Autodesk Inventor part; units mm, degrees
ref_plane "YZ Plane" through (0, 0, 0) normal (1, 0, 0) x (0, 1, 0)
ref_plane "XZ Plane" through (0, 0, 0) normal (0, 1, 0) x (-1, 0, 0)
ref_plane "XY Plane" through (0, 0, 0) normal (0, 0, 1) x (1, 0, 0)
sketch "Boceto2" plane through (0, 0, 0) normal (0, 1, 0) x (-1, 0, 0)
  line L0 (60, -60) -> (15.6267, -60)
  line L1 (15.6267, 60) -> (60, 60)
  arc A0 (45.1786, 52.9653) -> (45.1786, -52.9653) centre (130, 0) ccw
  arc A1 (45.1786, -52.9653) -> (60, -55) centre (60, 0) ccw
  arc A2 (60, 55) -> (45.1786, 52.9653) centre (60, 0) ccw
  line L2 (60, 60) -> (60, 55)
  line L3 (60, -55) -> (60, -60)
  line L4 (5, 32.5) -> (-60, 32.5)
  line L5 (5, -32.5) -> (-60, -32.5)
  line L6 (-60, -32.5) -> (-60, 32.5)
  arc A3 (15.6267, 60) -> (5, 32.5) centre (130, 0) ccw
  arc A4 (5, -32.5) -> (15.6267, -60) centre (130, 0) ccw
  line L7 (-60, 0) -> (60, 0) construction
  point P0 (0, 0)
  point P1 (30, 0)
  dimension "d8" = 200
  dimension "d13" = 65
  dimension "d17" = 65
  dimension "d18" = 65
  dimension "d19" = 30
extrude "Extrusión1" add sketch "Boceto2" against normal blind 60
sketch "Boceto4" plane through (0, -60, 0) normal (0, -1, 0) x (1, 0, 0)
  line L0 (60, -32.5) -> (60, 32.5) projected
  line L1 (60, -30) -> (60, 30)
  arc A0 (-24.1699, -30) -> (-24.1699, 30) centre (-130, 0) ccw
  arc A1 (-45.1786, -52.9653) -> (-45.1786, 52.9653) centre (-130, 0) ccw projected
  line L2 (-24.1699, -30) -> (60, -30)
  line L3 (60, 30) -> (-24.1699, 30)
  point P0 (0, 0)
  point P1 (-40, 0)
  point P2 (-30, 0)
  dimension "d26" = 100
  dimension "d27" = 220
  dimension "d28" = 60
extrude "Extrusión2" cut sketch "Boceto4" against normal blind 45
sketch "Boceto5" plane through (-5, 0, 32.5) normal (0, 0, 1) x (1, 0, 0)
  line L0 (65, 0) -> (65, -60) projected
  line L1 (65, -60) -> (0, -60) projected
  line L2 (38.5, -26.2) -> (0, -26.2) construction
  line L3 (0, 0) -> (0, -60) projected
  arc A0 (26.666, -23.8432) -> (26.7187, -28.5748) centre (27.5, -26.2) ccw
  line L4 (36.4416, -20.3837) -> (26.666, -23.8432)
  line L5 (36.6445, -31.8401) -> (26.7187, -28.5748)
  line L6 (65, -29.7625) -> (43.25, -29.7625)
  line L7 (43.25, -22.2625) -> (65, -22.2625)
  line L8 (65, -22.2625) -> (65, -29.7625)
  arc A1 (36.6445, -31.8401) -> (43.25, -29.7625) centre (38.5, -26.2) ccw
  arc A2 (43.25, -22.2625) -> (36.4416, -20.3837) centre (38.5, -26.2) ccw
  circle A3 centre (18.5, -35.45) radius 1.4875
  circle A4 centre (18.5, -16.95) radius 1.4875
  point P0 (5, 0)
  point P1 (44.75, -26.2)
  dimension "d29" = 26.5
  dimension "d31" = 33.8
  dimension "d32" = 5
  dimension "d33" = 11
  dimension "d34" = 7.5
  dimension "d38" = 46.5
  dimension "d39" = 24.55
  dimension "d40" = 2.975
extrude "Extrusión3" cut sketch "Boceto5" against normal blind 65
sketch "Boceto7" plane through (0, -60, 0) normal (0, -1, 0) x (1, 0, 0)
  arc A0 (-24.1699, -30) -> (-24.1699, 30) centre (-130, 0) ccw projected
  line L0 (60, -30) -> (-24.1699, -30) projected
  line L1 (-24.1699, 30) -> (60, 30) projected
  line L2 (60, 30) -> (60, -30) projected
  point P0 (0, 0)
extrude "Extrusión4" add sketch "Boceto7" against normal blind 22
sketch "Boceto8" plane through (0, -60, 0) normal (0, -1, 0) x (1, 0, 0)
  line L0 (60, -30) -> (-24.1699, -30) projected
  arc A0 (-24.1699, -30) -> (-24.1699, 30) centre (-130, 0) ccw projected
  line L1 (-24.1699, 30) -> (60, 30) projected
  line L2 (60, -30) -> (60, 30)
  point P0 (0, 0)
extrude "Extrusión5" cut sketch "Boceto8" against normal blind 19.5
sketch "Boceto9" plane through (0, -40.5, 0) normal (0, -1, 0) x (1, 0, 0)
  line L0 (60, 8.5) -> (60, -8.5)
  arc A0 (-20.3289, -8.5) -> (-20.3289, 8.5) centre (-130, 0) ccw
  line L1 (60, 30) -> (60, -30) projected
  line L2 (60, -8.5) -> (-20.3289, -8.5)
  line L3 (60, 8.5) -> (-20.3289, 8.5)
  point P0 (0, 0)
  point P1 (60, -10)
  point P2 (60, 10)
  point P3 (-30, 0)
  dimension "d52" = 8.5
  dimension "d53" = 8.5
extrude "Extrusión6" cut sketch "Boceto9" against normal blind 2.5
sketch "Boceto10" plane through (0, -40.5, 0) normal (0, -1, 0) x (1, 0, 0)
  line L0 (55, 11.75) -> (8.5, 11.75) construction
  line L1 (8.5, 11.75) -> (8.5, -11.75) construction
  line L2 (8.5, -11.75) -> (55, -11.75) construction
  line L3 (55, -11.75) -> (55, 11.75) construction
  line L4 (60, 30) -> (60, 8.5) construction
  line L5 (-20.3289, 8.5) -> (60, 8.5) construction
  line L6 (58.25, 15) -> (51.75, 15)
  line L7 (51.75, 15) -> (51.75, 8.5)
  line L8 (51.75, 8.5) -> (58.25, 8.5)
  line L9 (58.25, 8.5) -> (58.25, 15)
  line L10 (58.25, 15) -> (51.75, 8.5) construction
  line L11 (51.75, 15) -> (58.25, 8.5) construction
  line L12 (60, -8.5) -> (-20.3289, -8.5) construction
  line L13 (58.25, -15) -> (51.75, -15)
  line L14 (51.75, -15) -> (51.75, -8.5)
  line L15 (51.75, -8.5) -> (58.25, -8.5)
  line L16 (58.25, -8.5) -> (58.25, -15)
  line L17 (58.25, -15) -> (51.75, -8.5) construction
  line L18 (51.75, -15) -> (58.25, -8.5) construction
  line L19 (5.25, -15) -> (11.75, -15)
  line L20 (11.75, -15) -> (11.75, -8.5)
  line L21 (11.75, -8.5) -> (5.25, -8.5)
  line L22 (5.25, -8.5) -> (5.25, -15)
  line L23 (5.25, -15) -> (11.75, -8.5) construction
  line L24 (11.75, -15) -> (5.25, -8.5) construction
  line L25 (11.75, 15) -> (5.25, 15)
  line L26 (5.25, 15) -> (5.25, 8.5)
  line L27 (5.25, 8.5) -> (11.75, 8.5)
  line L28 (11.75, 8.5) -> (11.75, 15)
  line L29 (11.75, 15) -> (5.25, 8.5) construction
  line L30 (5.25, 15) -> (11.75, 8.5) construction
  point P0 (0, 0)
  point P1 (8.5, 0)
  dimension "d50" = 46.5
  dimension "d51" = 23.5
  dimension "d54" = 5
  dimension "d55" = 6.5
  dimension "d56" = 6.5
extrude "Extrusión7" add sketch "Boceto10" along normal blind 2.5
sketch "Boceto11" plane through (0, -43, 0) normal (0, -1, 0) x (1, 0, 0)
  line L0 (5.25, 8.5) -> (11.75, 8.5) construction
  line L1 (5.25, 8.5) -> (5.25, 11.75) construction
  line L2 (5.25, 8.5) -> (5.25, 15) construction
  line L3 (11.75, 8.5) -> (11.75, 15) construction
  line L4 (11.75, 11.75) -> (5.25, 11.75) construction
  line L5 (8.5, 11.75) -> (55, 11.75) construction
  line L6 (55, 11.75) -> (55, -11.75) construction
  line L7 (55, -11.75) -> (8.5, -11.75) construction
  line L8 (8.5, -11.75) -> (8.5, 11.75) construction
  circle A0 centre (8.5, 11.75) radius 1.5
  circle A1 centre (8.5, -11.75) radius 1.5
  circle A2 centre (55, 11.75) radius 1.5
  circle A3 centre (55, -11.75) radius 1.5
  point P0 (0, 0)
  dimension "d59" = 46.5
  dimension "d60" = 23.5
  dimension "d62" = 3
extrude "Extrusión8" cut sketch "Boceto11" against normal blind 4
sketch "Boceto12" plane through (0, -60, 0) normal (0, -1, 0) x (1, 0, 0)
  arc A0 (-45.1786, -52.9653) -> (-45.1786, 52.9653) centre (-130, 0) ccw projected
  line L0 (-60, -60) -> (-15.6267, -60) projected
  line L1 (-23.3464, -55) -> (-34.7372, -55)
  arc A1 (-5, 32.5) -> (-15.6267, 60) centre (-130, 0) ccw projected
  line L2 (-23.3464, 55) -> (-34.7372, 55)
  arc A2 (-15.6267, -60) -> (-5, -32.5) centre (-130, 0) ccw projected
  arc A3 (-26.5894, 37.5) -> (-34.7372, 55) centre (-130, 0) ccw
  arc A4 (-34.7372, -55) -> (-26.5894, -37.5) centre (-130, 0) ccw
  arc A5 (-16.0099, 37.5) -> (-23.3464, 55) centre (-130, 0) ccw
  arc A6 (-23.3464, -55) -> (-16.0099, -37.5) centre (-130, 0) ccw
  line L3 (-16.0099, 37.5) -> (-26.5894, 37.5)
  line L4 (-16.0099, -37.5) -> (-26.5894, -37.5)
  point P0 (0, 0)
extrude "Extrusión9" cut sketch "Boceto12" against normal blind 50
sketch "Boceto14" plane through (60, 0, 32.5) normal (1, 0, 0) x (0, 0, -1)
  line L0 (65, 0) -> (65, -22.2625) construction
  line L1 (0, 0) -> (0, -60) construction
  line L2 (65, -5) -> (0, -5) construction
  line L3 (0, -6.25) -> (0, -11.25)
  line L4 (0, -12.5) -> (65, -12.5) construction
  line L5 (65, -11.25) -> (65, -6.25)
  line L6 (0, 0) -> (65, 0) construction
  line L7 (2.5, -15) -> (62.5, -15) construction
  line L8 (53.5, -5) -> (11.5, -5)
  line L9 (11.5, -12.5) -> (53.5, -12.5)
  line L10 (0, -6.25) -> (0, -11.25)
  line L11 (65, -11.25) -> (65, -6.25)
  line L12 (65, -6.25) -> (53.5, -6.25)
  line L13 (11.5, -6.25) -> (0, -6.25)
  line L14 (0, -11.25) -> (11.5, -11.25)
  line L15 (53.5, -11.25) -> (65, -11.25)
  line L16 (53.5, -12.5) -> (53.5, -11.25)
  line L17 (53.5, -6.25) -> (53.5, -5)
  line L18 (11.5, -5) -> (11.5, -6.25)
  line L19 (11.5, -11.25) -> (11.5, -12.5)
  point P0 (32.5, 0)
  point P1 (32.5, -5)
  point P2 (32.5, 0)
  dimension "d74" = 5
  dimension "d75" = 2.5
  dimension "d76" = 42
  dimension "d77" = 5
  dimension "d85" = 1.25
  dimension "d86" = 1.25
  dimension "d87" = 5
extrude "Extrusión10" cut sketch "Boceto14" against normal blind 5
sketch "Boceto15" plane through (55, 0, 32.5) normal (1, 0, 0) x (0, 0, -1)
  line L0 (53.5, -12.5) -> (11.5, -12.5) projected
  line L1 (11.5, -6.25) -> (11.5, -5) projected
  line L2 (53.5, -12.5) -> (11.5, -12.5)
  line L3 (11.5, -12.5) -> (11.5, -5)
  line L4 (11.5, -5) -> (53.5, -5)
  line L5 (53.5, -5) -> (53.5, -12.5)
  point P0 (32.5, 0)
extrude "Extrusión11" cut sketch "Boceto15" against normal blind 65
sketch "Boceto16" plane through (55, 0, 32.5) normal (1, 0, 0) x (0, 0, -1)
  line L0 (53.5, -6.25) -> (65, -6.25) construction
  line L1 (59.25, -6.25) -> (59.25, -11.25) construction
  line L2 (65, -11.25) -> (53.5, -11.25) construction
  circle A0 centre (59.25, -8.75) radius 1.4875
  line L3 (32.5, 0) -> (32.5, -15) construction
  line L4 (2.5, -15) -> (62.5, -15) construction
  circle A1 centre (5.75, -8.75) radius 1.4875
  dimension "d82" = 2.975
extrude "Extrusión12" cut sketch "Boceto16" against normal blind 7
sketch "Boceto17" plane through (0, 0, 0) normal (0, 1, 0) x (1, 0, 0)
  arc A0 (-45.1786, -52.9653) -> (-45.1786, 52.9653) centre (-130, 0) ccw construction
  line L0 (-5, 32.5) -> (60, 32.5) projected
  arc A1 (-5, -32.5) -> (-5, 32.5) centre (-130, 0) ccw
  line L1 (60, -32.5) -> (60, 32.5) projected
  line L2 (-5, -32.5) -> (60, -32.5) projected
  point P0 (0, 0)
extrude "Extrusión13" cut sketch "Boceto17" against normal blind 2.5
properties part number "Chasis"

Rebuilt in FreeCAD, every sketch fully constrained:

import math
import FreeCAD as App
import Part
import Sketcher
from FreeCAD import Vector
Q = App.Units.Quantity

doc = App.newDocument("Part")
body = doc.addObject("PartDesign::Body", "Body")

sketch1 = body.newObject("Sketcher::SketchObject", "Sketch")
sketch1.AttachmentSupport = (doc.getObject("XZ_Plane"), [""])
sketch1.MapMode = "FlatFace"
sketch1.addGeometry(Part.LineSegment(Vector(-16, -60, 0), Vector(-60, -60, 0)), False)
sketch1.addGeometry(Part.LineSegment(Vector(-60, -60, 0), Vector(-60, -55, 0)), False)
sketch1.addGeometry(Part.ArcOfCircle(Part.Circle(Vector(-60, 0, 0), Vector(0, 0, 1), 55), math.radians(-90), math.radians(-74.37)), False)
sketch1.addGeometry(Part.ArcOfCircle(Part.Circle(Vector(-130, 0, 0), Vector(0, 0, 1), 100), math.radians(-32), math.radians(32)), False)
sketch1.addGeometry(Part.ArcOfCircle(Part.Circle(Vector(-60, 0, 0), Vector(0, 0, 1), 55), math.radians(74.37), math.radians(90)), False)
sketch1.addGeometry(Part.LineSegment(Vector(-60, 55, 0), Vector(-60, 60, 0)), False)
sketch1.addGeometry(Part.LineSegment(Vector(-60, 60, 0), Vector(-16, 60, 0)), False)
sketch1.addGeometry(Part.ArcOfCircle(Part.Circle(Vector(-130, 0, 0), Vector(0, 0, 1), 129), math.radians(14.57), math.radians(27.68)), False)
sketch1.addGeometry(Part.LineSegment(Vector(-5, 32, 0), Vector(60, 32, 0)), False)
sketch1.addGeometry(Part.LineSegment(Vector(60, 32, 0), Vector(60, -32, 0)), False)
sketch1.addGeometry(Part.LineSegment(Vector(60, -32, 0), Vector(-5, -32, 0)), False)
sketch1.addGeometry(Part.ArcOfCircle(Part.Circle(Vector(-130, 0, 0), Vector(0, 0, 1), 129), math.radians(-27.68), math.radians(-14.57)), False)
sketch1.addConstraint(Sketcher.Constraint("Coincident", 0, 2, 1, 1))
sketch1.addConstraint(Sketcher.Constraint("Coincident", 1, 2, 2, 1))
sketch1.addConstraint(Sketcher.Constraint("Coincident", 2, 2, 3, 1))
sketch1.addConstraint(Sketcher.Constraint("Coincident", 3, 2, 4, 1))
sketch1.addConstraint(Sketcher.Constraint("Coincident", 4, 2, 5, 1))
sketch1.addConstraint(Sketcher.Constraint("Coincident", 5, 2, 6, 1))
sketch1.addConstraint(Sketcher.Constraint("Coincident", 6, 2, 7, 2))
sketch1.addConstraint(Sketcher.Constraint("Coincident", 7, 1, 8, 1))
sketch1.addConstraint(Sketcher.Constraint("Coincident", 8, 2, 9, 1))
sketch1.addConstraint(Sketcher.Constraint("Coincident", 9, 2, 10, 1))
sketch1.addConstraint(Sketcher.Constraint("Coincident", 10, 2, 11, 2))
sketch1.addConstraint(Sketcher.Constraint("Coincident", 11, 1, 0, 1))
sketch1.addConstraint(Sketcher.Constraint("Horizontal", 0))
sketch1.addConstraint(Sketcher.Constraint("Vertical", 1))
sketch1.addConstraint(Sketcher.Constraint("Vertical", 5))
sketch1.addConstraint(Sketcher.Constraint("Horizontal", 6))
sketch1.addConstraint(Sketcher.Constraint("Horizontal", 8))
sketch1.addConstraint(Sketcher.Constraint("Vertical", 9))
sketch1.addConstraint(Sketcher.Constraint("Horizontal", 10))
sketch1.addConstraint(Sketcher.Constraint("Coincident", 7, 3, 3, 3))
sketch1.addConstraint(Sketcher.Constraint("Coincident", 11, 3, 3, 3))
sketch1.addConstraint(Sketcher.Constraint("Equal", 7, 11))
sketch1.addConstraint(Sketcher.Constraint("Symmetric", 2, 2, 3, 2, -1))
sketch1.addConstraint(Sketcher.Constraint("Symmetric", 1, 2, 4, 2, -1))
sketch1.addConstraint(Sketcher.Constraint("Horizontal", 2, 3, 4, 3))
sketch1.addConstraint(Sketcher.Constraint("Vertical", 4, 3, 0, 2))
sketch1.addConstraint(Sketcher.Constraint("Vertical", 7, 1, 10, 2))
sketch1.addConstraint(Sketcher.Constraint("Vertical", 6, 2, 11, 1))
sketch1.addConstraint(Sketcher.Constraint("Equal", 10, 9))
sketch1.addConstraint(Sketcher.Constraint("Radius", 3, Q("100 mm")))
sketch1.addConstraint(Sketcher.Constraint("DistanceX", 8, 1, 8, 2, Q("65 mm")))
sketch1.addConstraint(Sketcher.Constraint("DistanceY", 1, 1, 1, 2, Q("5 mm")))
sketch1.addConstraint(Sketcher.Constraint("DistanceX", 3, 3, -1, 1, Q("130 mm")))
sketch1.addConstraint(Sketcher.Constraint("DistanceX", 4, 3, -1, 1, Q("60 mm")))
sketch1.addConstraint(Sketcher.Constraint("DistanceY", 0, 2, -1, 1, Q("60 mm")))
sketch1.addConstraint(Sketcher.Constraint("DistanceX", 7, 1, -1, 1, Q("5 mm")))
sketch1.addConstraint(Sketcher.Constraint("Radius", 2, Q("55.0015 mm")))
pad1 = body.newObject("PartDesign::Pad", "Pad")
pad1.Profile = sketch1
pad1.Length = 60

sketch2 = body.newObject("Sketcher::SketchObject", "Sketch001")
sketch2.AttachmentSupport = (doc.getObject("XZ_Plane"), [""])
sketch2.MapMode = "FlatFace"
sketch2.AttachmentOffset = App.Placement(Vector(0, 0, 60), App.Rotation())
sketch2.addGeometry(Part.LineSegment(Vector(-24, -30, 0), Vector(60, -30, 0)), False)
sketch2.addGeometry(Part.LineSegment(Vector(60, -30, 0), Vector(60, 30, 0)), False)
sketch2.addGeometry(Part.LineSegment(Vector(60, 30, 0), Vector(-24, 30, 0)), False)
sketch2.addGeometry(Part.ArcOfCircle(Part.Circle(Vector(-130, 0, 0), Vector(0, 0, 1), 110), math.radians(-16), math.radians(16)), False)
sketch2.addConstraint(Sketcher.Constraint("Coincident", 0, 2, 1, 1))
sketch2.addConstraint(Sketcher.Constraint("Coincident", 1, 2, 2, 1))
sketch2.addConstraint(Sketcher.Constraint("Coincident", 2, 2, 3, 2))
sketch2.addConstraint(Sketcher.Constraint("Coincident", 3, 1, 0, 1))
sketch2.addConstraint(Sketcher.Constraint("Horizontal", 0))
sketch2.addConstraint(Sketcher.Constraint("Vertical", 1))
sketch2.addConstraint(Sketcher.Constraint("Horizontal", 2))
sketch2.addConstraint(Sketcher.Constraint("Symmetric", 2, 2, 3, 1, -1))
sketch2.addConstraint(Sketcher.Constraint("Radius", 3, Q("110 mm")))
sketch2.addConstraint(Sketcher.Constraint("DistanceY", 1, 1, 1, 2, Q("60 mm")))
sketch2.addConstraint(Sketcher.Constraint("DistanceX", -1, 1, 0, 2, Q("60 mm")))
sketch2.addConstraint(Sketcher.Constraint("DistanceX", 3, 3, -1, 1, Q("130 mm")))
pocket1 = body.newObject("PartDesign::Pocket", "Pocket")
pocket1.Profile = sketch2
pocket1.Length = 45

sketch3 = body.newObject("Sketcher::SketchObject", "Sketch002")
sketch3.AttachmentSupport = (doc.getObject("XY_Plane"), [""])
sketch3.MapMode = "FlatFace"
sketch3.AttachmentOffset = App.Placement(Vector(0, 0, 32.5), App.Rotation())
sketch3.addGeometry(Part.LineSegment(Vector(60, -29.8, 0), Vector(60, -22.3, 0)), False)
sketch3.addGeometry(Part.LineSegment(Vector(60, -22.3, 0), Vector(38.2, -22.3, 0)), False)
sketch3.addGeometry(Part.ArcOfCircle(Part.Circle(Vector(33.5, -26.2, 0), Vector(0, 0, 1), 6.2), math.radians(40), math.radians(109)), False)
sketch3.addGeometry(Part.LineSegment(Vector(31.4, -20.4, 0), Vector(21.7, -23.8, 0)), False)
sketch3.addGeometry(Part.ArcOfCircle(Part.Circle(Vector(22.5, -26.2, 0), Vector(0, 0, 1), 2.5), math.radians(109), math.radians(252)), False)
sketch3.addGeometry(Part.LineSegment(Vector(21.7, -28.6, 0), Vector(31.6, -31.8, 0)), False)
sketch3.addGeometry(Part.ArcOfCircle(Part.Circle(Vector(33.5, -26.2, 0), Vector(0, 0, 1), 5.9), math.radians(-108), math.radians(-37)), False)
sketch3.addGeometry(Part.LineSegment(Vector(38.2, -29.8, 0), Vector(60, -29.8, 0)), False)
sketch3.addGeometry(Part.Circle(Vector(13.5, -35.5, 0), Vector(0, 0, 1), 1.5), False)
sketch3.addGeometry(Part.Circle(Vector(13.5, -16.9, 0), Vector(0, 0, 1), 1.5), False)
sketch3.addConstraint(Sketcher.Constraint("Coincident", 0, 2, 1, 1))
sketch3.addConstraint(Sketcher.Constraint("Coincident", 1, 2, 2, 1))
sketch3.addConstraint(Sketcher.Constraint("Tangent", 2, 2, 3, 1))
sketch3.addConstraint(Sketcher.Constraint("Tangent", 3, 2, 4, 1))
sketch3.addConstraint(Sketcher.Constraint("Tangent", 4, 2, 5, 1))
sketch3.addConstraint(Sketcher.Constraint("Tangent", 5, 2, 6, 1))
sketch3.addConstraint(Sketcher.Constraint("Coincident", 6, 2, 7, 1))
sketch3.addConstraint(Sketcher.Constraint("Coincident", 7, 2, 0, 1))
sketch3.addConstraint(Sketcher.Constraint("Vertical", 0))
sketch3.addConstraint(Sketcher.Constraint("Horizontal", 1))
sketch3.addConstraint(Sketcher.Constraint("Horizontal", 7))
sketch3.addConstraint(Sketcher.Constraint("Coincident", 6, 3, 2, 3))
sketch3.addConstraint(Sketcher.Constraint("Equal", 8, 9))
sketch3.addConstraint(Sketcher.Constraint("Horizontal", 2, 3, 4, 3))
sketch3.addConstraint(Sketcher.Constraint("Vertical", 8, 3, 9, 3))
sketch3.addConstraint(Sketcher.Constraint("Vertical", 1, 2, 6, 2))
sketch3.addConstraint(Sketcher.Constraint("Radius", 4, Q("2.5 mm")))
sketch3.addConstraint(Sketcher.Constraint("Diameter", 8, Q("2.975 mm")))
sketch3.addConstraint(Sketcher.Constraint("DistanceY", 0, 1, 0, 2, Q("7.5 mm")))
sketch3.addConstraint(Sketcher.Constraint("DistanceX", 4, 3, 2, 3, Q("11 mm")))
sketch3.addConstraint(Sketcher.Constraint("DistanceX", 2, 3, 0, 2, Q("26.5 mm")))
sketch3.addConstraint(Sketcher.Constraint("DistanceX", 9, 3, 0, 2, Q("46.5 mm")))
sketch3.addConstraint(Sketcher.Constraint("DistanceX", -1, 1, 0, 2, Q("60 mm")))
sketch3.addConstraint(Sketcher.Constraint("DistanceX", 1, 2, 1, 1, Q("21.75 mm")))
sketch3.addConstraint(Sketcher.Constraint("DistanceY", 2, 3, -1, 1, Q("26.2 mm")))
sketch3.addConstraint(Sketcher.Constraint("Angle", 5, Q("-18.2097 deg")))
sketch3.addConstraint(Sketcher.Constraint("DistanceY", 8, 3, 9, 3, Q("18.5 mm")))
sketch3.addConstraint(Sketcher.Constraint("DistanceY", 8, 3, -1, 1, Q("35.45 mm")))
pocket2 = body.newObject("PartDesign::Pocket", "Pocket001")
pocket2.Profile = sketch3
pocket2.Length = 65

sketch4 = body.newObject("Sketcher::SketchObject", "Sketch003")
sketch4.AttachmentSupport = (doc.getObject("XZ_Plane"), [""])
sketch4.MapMode = "FlatFace"
sketch4.AttachmentOffset = App.Placement(Vector(0, 0, 60), App.Rotation())
sketch4.addGeometry(Part.ArcOfCircle(Part.Circle(Vector(-130, 0, 0), Vector(0, 0, 1), 110), math.radians(-16), math.radians(16)), False)
sketch4.addGeometry(Part.LineSegment(Vector(-24, -30, 0), Vector(60, -30, 0)), False)
sketch4.addGeometry(Part.LineSegment(Vector(60, -30, 0), Vector(60, 30, 0)), False)
sketch4.addGeometry(Part.LineSegment(Vector(60, 30, 0), Vector(-24, 30, 0)), False)
sketch4.addConstraint(Sketcher.Constraint("Coincident", 0, 1, 1, 1))
sketch4.addConstraint(Sketcher.Constraint("Coincident", 1, 2, 2, 1))
sketch4.addConstraint(Sketcher.Constraint("Coincident", 2, 2, 3, 1))
sketch4.addConstraint(Sketcher.Constraint("Coincident", 3, 2, 0, 2))
sketch4.addConstraint(Sketcher.Constraint("Horizontal", 1))
sketch4.addConstraint(Sketcher.Constraint("Vertical", 2))
sketch4.addConstraint(Sketcher.Constraint("Horizontal", 3))
sketch4.addConstraint(Sketcher.Constraint("Symmetric", 0, 1, 3, 2, -1))
sketch4.addConstraint(Sketcher.Constraint("Radius", 0, Q("110 mm")))
sketch4.addConstraint(Sketcher.Constraint("DistanceY", 2, 1, 2, 2, Q("60 mm")))
sketch4.addConstraint(Sketcher.Constraint("DistanceX", 0, 3, -1, 1, Q("130 mm")))
sketch4.addConstraint(Sketcher.Constraint("DistanceX", -1, 1, 1, 2, Q("60 mm")))
pad2 = body.newObject("PartDesign::Pad", "Pad001")
pad2.Profile = sketch4
pad2.Length = 22
pad2.Reversed = True

sketch5 = body.newObject("Sketcher::SketchObject", "Sketch004")
sketch5.AttachmentSupport = (doc.getObject("XZ_Plane"), [""])
sketch5.MapMode = "FlatFace"
sketch5.AttachmentOffset = App.Placement(Vector(0, 0, 60), App.Rotation())
sketch5.addGeometry(Part.LineSegment(Vector(-24, -30, 0), Vector(60, -30, 0)), False)
sketch5.addGeometry(Part.LineSegment(Vector(60, -30, 0), Vector(60, 30, 0)), False)
sketch5.addGeometry(Part.LineSegment(Vector(60, 30, 0), Vector(-24, 30, 0)), False)
sketch5.addGeometry(Part.ArcOfCircle(Part.Circle(Vector(-130, 0, 0), Vector(0, 0, 1), 110), math.radians(-16), math.radians(16)), False)
sketch5.addConstraint(Sketcher.Constraint("Coincident", 0, 2, 1, 1))
sketch5.addConstraint(Sketcher.Constraint("Coincident", 1, 2, 2, 1))
sketch5.addConstraint(Sketcher.Constraint("Coincident", 2, 2, 3, 2))
sketch5.addConstraint(Sketcher.Constraint("Coincident", 3, 1, 0, 1))
sketch5.addConstraint(Sketcher.Constraint("Horizontal", 0))
sketch5.addConstraint(Sketcher.Constraint("Vertical", 1))
sketch5.addConstraint(Sketcher.Constraint("Horizontal", 2))
sketch5.addConstraint(Sketcher.Constraint("Symmetric", 2, 2, 3, 1, -1))
sketch5.addConstraint(Sketcher.Constraint("Radius", 3, Q("110 mm")))
sketch5.addConstraint(Sketcher.Constraint("DistanceY", 1, 1, 1, 2, Q("60 mm")))
sketch5.addConstraint(Sketcher.Constraint("DistanceX", 3, 3, -1, 1, Q("130 mm")))
sketch5.addConstraint(Sketcher.Constraint("DistanceX", -1, 1, 0, 2, Q("60 mm")))
pocket3 = body.newObject("PartDesign::Pocket", "Pocket002")
pocket3.Profile = sketch5
pocket3.Length = 19.5

sketch6 = body.newObject("Sketcher::SketchObject", "Sketch005")
sketch6.AttachmentSupport = (doc.getObject("XZ_Plane"), [""])
sketch6.MapMode = "FlatFace"
sketch6.AttachmentOffset = App.Placement(Vector(0, 0, 40.5), App.Rotation())
sketch6.addGeometry(Part.LineSegment(Vector(60, -8, 0), Vector(60, 8, 0)), False)
sketch6.addGeometry(Part.LineSegment(Vector(60, 8, 0), Vector(-20, 8, 0)), False)
sketch6.addGeometry(Part.ArcOfCircle(Part.Circle(Vector(-130, 0, 0), Vector(0, 0, 1), 110), math.radians(-4.43), math.radians(4.43)), False)
sketch6.addGeometry(Part.LineSegment(Vector(-20, -8, 0), Vector(60, -8, 0)), False)
sketch6.addConstraint(Sketcher.Constraint("Coincident", 0, 2, 1, 1))
sketch6.addConstraint(Sketcher.Constraint("Coincident", 1, 2, 2, 2))
sketch6.addConstraint(Sketcher.Constraint("Coincident", 2, 1, 3, 1))
sketch6.addConstraint(Sketcher.Constraint("Coincident", 3, 2, 0, 1))
sketch6.addConstraint(Sketcher.Constraint("Vertical", 0))
sketch6.addConstraint(Sketcher.Constraint("Horizontal", 1))
sketch6.addConstraint(Sketcher.Constraint("Horizontal", 3))
sketch6.addConstraint(Sketcher.Constraint("Symmetric", 1, 2, 2, 1, -1))
sketch6.addConstraint(Sketcher.Constraint("Radius", 2, Q("110 mm")))
sketch6.addConstraint(Sketcher.Constraint("DistanceY", -1, 1, 0, 2, Q("8.5 mm")))
sketch6.addConstraint(Sketcher.Constraint("DistanceX", 2, 3, -1, 1, Q("130 mm")))
sketch6.addConstraint(Sketcher.Constraint("DistanceX", -1, 1, 0, 2, Q("60 mm")))
pocket4 = body.newObject("PartDesign::Pocket", "Pocket003")
pocket4.Profile = sketch6
pocket4.Length = 2.5

sketch7 = body.newObject("Sketcher::SketchObject", "Sketch006")
sketch7.AttachmentSupport = (doc.getObject("XZ_Plane"), [""])
sketch7.MapMode = "FlatFace"
sketch7.AttachmentOffset = App.Placement(Vector(0, 0, 40.5), App.Rotation())
sketch7.addGeometry(Part.LineSegment(Vector(58, 8, 0), Vector(58, 15, 0)), False)
sketch7.addGeometry(Part.LineSegment(Vector(58, 15, 0), Vector(52, 15, 0)), False)
sketch7.addGeometry(Part.LineSegment(Vector(52, 15, 0), Vector(52, 8, 0)), False)
sketch7.addGeometry(Part.LineSegment(Vector(52, 8, 0), Vector(58, 8, 0)), False)
sketch7.addGeometry(Part.LineSegment(Vector(52, -15, 0), Vector(58, -15, 0)), False)
sketch7.addGeometry(Part.LineSegment(Vector(58, -15, 0), Vector(58, -8, 0)), False)
sketch7.addGeometry(Part.LineSegment(Vector(58, -8, 0), Vector(52, -8, 0)), False)
sketch7.addGeometry(Part.LineSegment(Vector(52, -8, 0), Vector(52, -15, 0)), False)
sketch7.addGeometry(Part.LineSegment(Vector(5, -8, 0), Vector(5, -15, 0)), False)
sketch7.addGeometry(Part.LineSegment(Vector(5, -15, 0), Vector(12, -15, 0)), False)
sketch7.addGeometry(Part.LineSegment(Vector(12, -15, 0), Vector(12, -8, 0)), False)
sketch7.addGeometry(Part.LineSegment(Vector(12, -8, 0), Vector(5, -8, 0)), False)
sketch7.addGeometry(Part.LineSegment(Vector(12, 8, 0), Vector(12, 15, 0)), False)
sketch7.addGeometry(Part.LineSegment(Vector(12, 15, 0), Vector(5, 15, 0)), False)
sketch7.addGeometry(Part.LineSegment(Vector(5, 15, 0), Vector(5, 8, 0)), False)
sketch7.addGeometry(Part.LineSegment(Vector(5, 8, 0), Vector(12, 8, 0)), False)
sketch7.addConstraint(Sketcher.Constraint("Coincident", 0, 2, 1, 1))
sketch7.addConstraint(Sketcher.Constraint("Coincident", 1, 2, 2, 1))
sketch7.addConstraint(Sketcher.Constraint("Coincident", 2, 2, 3, 1))
sketch7.addConstraint(Sketcher.Constraint("Coincident", 3, 2, 0, 1))
sketch7.addConstraint(Sketcher.Constraint("Coincident", 4, 2, 5, 1))
sketch7.addConstraint(Sketcher.Constraint("Coincident", 5, 2, 6, 1))
sketch7.addConstraint(Sketcher.Constraint("Coincident", 6, 2, 7, 1))
sketch7.addConstraint(Sketcher.Constraint("Coincident", 7, 2, 4, 1))
sketch7.addConstraint(Sketcher.Constraint("Coincident", 8, 2, 9, 1))
sketch7.addConstraint(Sketcher.Constraint("Coincident", 9, 2, 10, 1))
sketch7.addConstraint(Sketcher.Constraint("Coincident", 10, 2, 11, 1))
sketch7.addConstraint(Sketcher.Constraint("Coincident", 11, 2, 8, 1))
sketch7.addConstraint(Sketcher.Constraint("Coincident", 12, 2, 13, 1))
sketch7.addConstraint(Sketcher.Constraint("Coincident", 13, 2, 14, 1))
sketch7.addConstraint(Sketcher.Constraint("Coincident", 14, 2, 15, 1))
sketch7.addConstraint(Sketcher.Constraint("Coincident", 15, 2, 12, 1))
sketch7.addConstraint(Sketcher.Constraint("Vertical", 0))
sketch7.addConstraint(Sketcher.Constraint("Horizontal", 1))
sketch7.addConstraint(Sketcher.Constraint("Vertical", 2))
sketch7.addConstraint(Sketcher.Constraint("Horizontal", 3))
sketch7.addConstraint(Sketcher.Constraint("Horizontal", 4))
sketch7.addConstraint(Sketcher.Constraint("Vertical", 5))
sketch7.addConstraint(Sketcher.Constraint("Horizontal", 6))
sketch7.addConstraint(Sketcher.Constraint("Vertical", 7))
sketch7.addConstraint(Sketcher.Constraint("Vertical", 8))
sketch7.addConstraint(Sketcher.Constraint("Horizontal", 9))
sketch7.addConstraint(Sketcher.Constraint("Vertical", 10))
sketch7.addConstraint(Sketcher.Constraint("Horizontal", 11))
sketch7.addConstraint(Sketcher.Constraint("Vertical", 12))
sketch7.addConstraint(Sketcher.Constraint("Horizontal", 13))
sketch7.addConstraint(Sketcher.Constraint("Vertical", 14))
sketch7.addConstraint(Sketcher.Constraint("Horizontal", 15))
sketch7.addConstraint(Sketcher.Constraint("Symmetric", 0, 2, 4, 2, -1))
sketch7.addConstraint(Sketcher.Constraint("Symmetric", 2, 2, 6, 2, -1))
sketch7.addConstraint(Sketcher.Constraint("Symmetric", 9, 2, 12, 2, -1))
sketch7.addConstraint(Sketcher.Constraint("Symmetric", 11, 2, 14, 2, -1))
sketch7.addConstraint(Sketcher.Constraint("Horizontal", 7, 2, 8, 2))
sketch7.addConstraint(Sketcher.Constraint("Horizontal", 6, 2, 10, 2))
sketch7.addConstraint(Sketcher.Constraint("Equal", 6, 9))
sketch7.addConstraint(Sketcher.Constraint("Equal", 15, 0))
sketch7.addConstraint(Sketcher.Constraint("DistanceX", 1, 2, 1, 1, Q("6.5 mm")))
sketch7.addConstraint(Sketcher.Constraint("DistanceY", 4, 2, 3, 2, Q("23.5 mm")))
sketch7.addConstraint(Sketcher.Constraint("DistanceX", 8, 2, 7, 2, Q("46.5 mm")))
sketch7.addConstraint(Sketcher.Constraint("DistanceX", -1, 1, 0, 2, Q("58.25 mm")))
pad3 = body.newObject("PartDesign::Pad", "Pad002")
pad3.Profile = sketch7
pad3.Length = 2.5

sketch8 = body.newObject("Sketcher::SketchObject", "Sketch007")
sketch8.AttachmentSupport = (doc.getObject("XZ_Plane"), [""])
sketch8.MapMode = "FlatFace"
sketch8.AttachmentOffset = App.Placement(Vector(0, 0, 43), App.Rotation())
sketch8.addGeometry(Part.Circle(Vector(8.5, 11.8, 0), Vector(0, 0, 1), 1.5), False)
sketch8.addGeometry(Part.Circle(Vector(8.5, -11.8, 0), Vector(0, 0, 1), 1.5), False)
sketch8.addGeometry(Part.Circle(Vector(55, 11.8, 0), Vector(0, 0, 1), 1.5), False)
sketch8.addGeometry(Part.Circle(Vector(55, -11.8, 0), Vector(0, 0, 1), 1.5), False)
sketch8.addConstraint(Sketcher.Constraint("Equal", 0, 1))
sketch8.addConstraint(Sketcher.Constraint("Equal", 1, 2))
sketch8.addConstraint(Sketcher.Constraint("Equal", 2, 3))
sketch8.addConstraint(Sketcher.Constraint("Symmetric", 0, 3, 1, 3, -1))
sketch8.addConstraint(Sketcher.Constraint("Symmetric", 2, 3, 3, 3, -1))
sketch8.addConstraint(Sketcher.Constraint("Horizontal", 0, 3, 2, 3))
sketch8.addConstraint(Sketcher.Constraint("Diameter", 0, Q("3 mm")))
sketch8.addConstraint(Sketcher.Constraint("DistanceY", 1, 3, 0, 3, Q("23.5 mm")))
sketch8.addConstraint(Sketcher.Constraint("DistanceX", 0, 3, 2, 3, Q("46.5 mm")))
sketch8.addConstraint(Sketcher.Constraint("DistanceX", -1, 1, 2, 3, Q("55 mm")))
pocket5 = body.newObject("PartDesign::Pocket", "Pocket004")
pocket5.Profile = sketch8
pocket5.Length = 4

sketch9 = body.newObject("Sketcher::SketchObject", "Sketch008")
sketch9.AttachmentSupport = (doc.getObject("XZ_Plane"), [""])
sketch9.MapMode = "FlatFace"
sketch9.AttachmentOffset = App.Placement(Vector(0, 0, 60), App.Rotation())
sketch9.addGeometry(Part.LineSegment(Vector(-35, -55, 0), Vector(-23, -55, 0)), False)
sketch9.addGeometry(Part.ArcOfCircle(Part.Circle(Vector(-130, 0, 0), Vector(0, 0, 1), 120), math.radians(-27.28), math.radians(-18.21)), False)
sketch9.addGeometry(Part.LineSegment(Vector(-16, -38, 0), Vector(-27, -38, 0)), False)
sketch9.addGeometry(Part.ArcOfCircle(Part.Circle(Vector(-130, 0, 0), Vector(0, 0, 1), 110), math.radians(-30), math.radians(-19.93)), False)
sketch9.addGeometry(Part.ArcOfCircle(Part.Circle(Vector(-130, 0, 0), Vector(0, 0, 1), 120), math.radians(18.21), math.radians(27.28)), False)
sketch9.addGeometry(Part.LineSegment(Vector(-23, 55, 0), Vector(-35, 55, 0)), False)
sketch9.addGeometry(Part.ArcOfCircle(Part.Circle(Vector(-130, 0, 0), Vector(0, 0, 1), 110), math.radians(19.93), math.radians(30)), False)
sketch9.addGeometry(Part.LineSegment(Vector(-27, 38, 0), Vector(-16, 38, 0)), False)
sketch9.addConstraint(Sketcher.Constraint("Coincident", 0, 2, 1, 1))
sketch9.addConstraint(Sketcher.Constraint("Coincident", 1, 2, 2, 1))
sketch9.addConstraint(Sketcher.Constraint("Coincident", 2, 2, 3, 2))
sketch9.addConstraint(Sketcher.Constraint("Coincident", 3, 1, 0, 1))
sketch9.addConstraint(Sketcher.Constraint("Coincident", 4, 2, 5, 1))
sketch9.addConstraint(Sketcher.Constraint("Coincident", 5, 2, 6, 2))
sketch9.addConstraint(Sketcher.Constraint("Coincident", 6, 1, 7, 1))
sketch9.addConstraint(Sketcher.Constraint("Coincident", 7, 2, 4, 1))
sketch9.addConstraint(Sketcher.Constraint("Horizontal", 0))
sketch9.addConstraint(Sketcher.Constraint("Horizontal", 2))
sketch9.addConstraint(Sketcher.Constraint("Horizontal", 5))
sketch9.addConstraint(Sketcher.Constraint("Horizontal", 7))
sketch9.addConstraint(Sketcher.Constraint("Coincident", 6, 3, 3, 3))
sketch9.addConstraint(Sketcher.Constraint("Equal", 3, 6))
sketch9.addConstraint(Sketcher.Constraint("Symmetric", 0, 2, 4, 2, -1))
sketch9.addConstraint(Sketcher.Constraint("Symmetric", 2, 2, 6, 1, -1))
sketch9.addConstraint(Sketcher.Constraint("Horizontal", 1, 3, 4, 3))
sketch9.addConstraint(Sketcher.Constraint("Vertical", 1, 2, 7, 2))
sketch9.addConstraint(Sketcher.Constraint("Radius", 3, Q("110 mm")))
sketch9.addConstraint(Sketcher.Constraint("DistanceX", 3, 3, -1, 1, Q("130 mm")))
sketch9.addConstraint(Sketcher.Constraint("DistanceY", 0, 2, -1, 1, Q("55 mm")))
sketch9.addConstraint(Sketcher.Constraint("DistanceY", 2, 2, 6, 1, Q("75 mm")))
sketch9.addConstraint(Sketcher.Constraint("Radius", 1, Q("120.0016 mm")))
sketch9.addConstraint(Sketcher.Constraint("Radius", 4, Q("119.9983 mm")))
sketch9.addConstraint(Sketcher.Constraint("DistanceX", 1, 2, -1, 1, Q("16.01 mm")))
pocket6 = body.newObject("PartDesign::Pocket", "Pocket005")
pocket6.Profile = sketch9
pocket6.Length = 50

sketch10 = body.newObject("Sketcher::SketchObject", "Sketch009")
sketch10.AttachmentSupport = (doc.getObject("YZ_Plane"), [""])
sketch10.MapMode = "FlatFace"
sketch10.AttachmentOffset = App.Placement(Vector(0, 0, 60), App.Rotation())
sketch10.addGeometry(Part.LineSegment(Vector(-6.2, 21, 0), Vector(-6.2, 32.5, 0)), False)
sketch10.addGeometry(Part.LineSegment(Vector(-6.2, 32.5, 0), Vector(-11.2, 32.5, 0)), False)
sketch10.addGeometry(Part.LineSegment(Vector(-11.2, 32.5, 0), Vector(-11.2, 21, 0)), False)
sketch10.addGeometry(Part.LineSegment(Vector(-11.2, 21, 0), Vector(-12.5, 21, 0)), False)
sketch10.addGeometry(Part.LineSegment(Vector(-12.5, 21, 0), Vector(-12.5, -21, 0)), False)
sketch10.addGeometry(Part.LineSegment(Vector(-12.5, -21, 0), Vector(-11.2, -21, 0)), False)
sketch10.addGeometry(Part.LineSegment(Vector(-11.2, -21, 0), Vector(-11.2, -32.5, 0)), False)
sketch10.addGeometry(Part.LineSegment(Vector(-11.2, -32.5, 0), Vector(-6.2, -32.5, 0)), False)
sketch10.addGeometry(Part.LineSegment(Vector(-6.2, -32.5, 0), Vector(-6.2, -21, 0)), False)
sketch10.addGeometry(Part.LineSegment(Vector(-6.2, -21, 0), Vector(-5, -21, 0)), False)
sketch10.addGeometry(Part.LineSegment(Vector(-5, -21, 0), Vector(-5, 21, 0)), False)
sketch10.addGeometry(Part.LineSegment(Vector(-5, 21, 0), Vector(-6.2, 21, 0)), False)
sketch10.addConstraint(Sketcher.Constraint("Coincident", 0, 2, 1, 1))
sketch10.addConstraint(Sketcher.Constraint("Coincident", 1, 2, 2, 1))
sketch10.addConstraint(Sketcher.Constraint("Coincident", 2, 2, 3, 1))
sketch10.addConstraint(Sketcher.Constraint("Coincident", 3, 2, 4, 1))
sketch10.addConstraint(Sketcher.Constraint("Coincident", 4, 2, 5, 1))
sketch10.addConstraint(Sketcher.Constraint("Coincident", 5, 2, 6, 1))
sketch10.addConstraint(Sketcher.Constraint("Coincident", 6, 2, 7, 1))
sketch10.addConstraint(Sketcher.Constraint("Coincident", 7, 2, 8, 1))
sketch10.addConstraint(Sketcher.Constraint("Coincident", 8, 2, 9, 1))
sketch10.addConstraint(Sketcher.Constraint("Coincident", 9, 2, 10, 1))
sketch10.addConstraint(Sketcher.Constraint("Coincident", 10, 2, 11, 1))
sketch10.addConstraint(Sketcher.Constraint("Coincident", 11, 2, 0, 1))
sketch10.addConstraint(Sketcher.Constraint("Vertical", 0))
sketch10.addConstraint(Sketcher.Constraint("Horizontal", 1))
sketch10.addConstraint(Sketcher.Constraint("Vertical", 2))
sketch10.addConstraint(Sketcher.Constraint("Horizontal", 3))
sketch10.addConstraint(Sketcher.Constraint("Vertical", 4))
sketch10.addConstraint(Sketcher.Constraint("Horizontal", 5))
sketch10.addConstraint(Sketcher.Constraint("Vertical", 6))
sketch10.addConstraint(Sketcher.Constraint("Horizontal", 7))
sketch10.addConstraint(Sketcher.Constraint("Vertical", 8))
sketch10.addConstraint(Sketcher.Constraint("Horizontal", 9))
sketch10.addConstraint(Sketcher.Constraint("Vertical", 10))
sketch10.addConstraint(Sketcher.Constraint("Horizontal", 11))
sketch10.addConstraint(Sketcher.Constraint("Symmetric", 2, 2, 5, 2, -1))
sketch10.addConstraint(Sketcher.Constraint("Symmetric", 0, 2, 7, 2, -1))
sketch10.addConstraint(Sketcher.Constraint("Horizontal", 5, 2, 8, 2))
sketch10.addConstraint(Sketcher.Constraint("Horizontal", 3, 2, 10, 2))
sketch10.addConstraint(Sketcher.Constraint("Equal", 5, 9))
sketch10.addConstraint(Sketcher.Constraint("DistanceX", 1, 2, 1, 1, Q("5 mm")))
sketch10.addConstraint(Sketcher.Constraint("DistanceY", 4, 2, 4, 1, Q("42 mm")))
sketch10.addConstraint(Sketcher.Constraint("DistanceX", 9, 2, -1, 1, Q("5 mm")))
sketch10.addConstraint(Sketcher.Constraint("DistanceX", 3, 2, 3, 1, Q("1.25 mm")))
sketch10.addConstraint(Sketcher.Constraint("DistanceY", 0, 1, 0, 2, Q("11.5 mm")))
pocket7 = body.newObject("PartDesign::Pocket", "Pocket006")
pocket7.Profile = sketch10
pocket7.Length = 5

sketch11 = body.newObject("Sketcher::SketchObject", "Sketch010")
sketch11.AttachmentSupport = (doc.getObject("YZ_Plane"), [""])
sketch11.MapMode = "FlatFace"
sketch11.AttachmentOffset = App.Placement(Vector(0, 0, 55), App.Rotation())
sketch11.addGeometry(Part.LineSegment(Vector(-12, 21, 0), Vector(-12, -21, 0)), False)
sketch11.addGeometry(Part.LineSegment(Vector(-12, -21, 0), Vector(-5, -21, 0)), False)
sketch11.addGeometry(Part.LineSegment(Vector(-5, -21, 0), Vector(-5, 21, 0)), False)
sketch11.addGeometry(Part.LineSegment(Vector(-5, 21, 0), Vector(-12, 21, 0)), False)
sketch11.addConstraint(Sketcher.Constraint("Coincident", 0, 2, 1, 1))
sketch11.addConstraint(Sketcher.Constraint("Coincident", 1, 2, 2, 1))
sketch11.addConstraint(Sketcher.Constraint("Coincident", 2, 2, 3, 1))
sketch11.addConstraint(Sketcher.Constraint("Coincident", 3, 2, 0, 1))
sketch11.addConstraint(Sketcher.Constraint("Vertical", 0))
sketch11.addConstraint(Sketcher.Constraint("Horizontal", 1))
sketch11.addConstraint(Sketcher.Constraint("Vertical", 2))
sketch11.addConstraint(Sketcher.Constraint("Horizontal", 3))
sketch11.addConstraint(Sketcher.Constraint("DistanceY", 0, 2, 0, 1, Q("42 mm")))
sketch11.addConstraint(Sketcher.Constraint("DistanceX", 1, 1, 1, 2, Q("7.5 mm")))
sketch11.addConstraint(Sketcher.Constraint("DistanceY", 0, 2, -1, 1, Q("21 mm")))
sketch11.addConstraint(Sketcher.Constraint("DistanceX", 1, 2, -1, 1, Q("5 mm")))
pocket8 = body.newObject("PartDesign::Pocket", "Pocket007")
pocket8.Profile = sketch11
pocket8.Length = 65

sketch12 = body.newObject("Sketcher::SketchObject", "Sketch011")
sketch12.AttachmentSupport = (doc.getObject("YZ_Plane"), [""])
sketch12.MapMode = "FlatFace"
sketch12.AttachmentOffset = App.Placement(Vector(0, 0, 55), App.Rotation())
sketch12.addGeometry(Part.Circle(Vector(-8.8, -26.8, 0), Vector(0, 0, 1), 1.5), False)
sketch12.addGeometry(Part.Circle(Vector(-8.8, 26.8, 0), Vector(0, 0, 1), 1.5), False)
sketch12.addConstraint(Sketcher.Constraint("Equal", 0, 1))
sketch12.addConstraint(Sketcher.Constraint("Symmetric", 0, 3, 1, 3, -1))
sketch12.addConstraint(Sketcher.Constraint("Diameter", 0, Q("2.975 mm")))
sketch12.addConstraint(Sketcher.Constraint("DistanceY", 0, 3, 1, 3, Q("53.5 mm")))
sketch12.addConstraint(Sketcher.Constraint("DistanceX", 0, 3, -1, 1, Q("8.75 mm")))
pocket9 = body.newObject("PartDesign::Pocket", "Pocket008")
pocket9.Profile = sketch12
pocket9.Length = 7

sketch13 = body.newObject("Sketcher::SketchObject", "Sketch012")
sketch13.AttachmentSupport = (doc.getObject("XZ_Plane"), [""])
sketch13.MapMode = "FlatFace"
sketch13.addGeometry(Part.LineSegment(Vector(60, -32, 0), Vector(-5, -32, 0)), False)
sketch13.addGeometry(Part.ArcOfCircle(Part.Circle(Vector(-130, 0, 0), Vector(0, 0, 1), 129), math.radians(-15), math.radians(15)), False)
sketch13.addGeometry(Part.LineSegment(Vector(-5, 32, 0), Vector(60, 32, 0)), False)
sketch13.addGeometry(Part.LineSegment(Vector(60, 32, 0), Vector(60, -32, 0)), False)
sketch13.addConstraint(Sketcher.Constraint("Coincident", 0, 2, 1, 1))
sketch13.addConstraint(Sketcher.Constraint("Coincident", 1, 2, 2, 1))
sketch13.addConstraint(Sketcher.Constraint("Coincident", 2, 2, 3, 1))
sketch13.addConstraint(Sketcher.Constraint("Coincident", 3, 2, 0, 1))
sketch13.addConstraint(Sketcher.Constraint("Horizontal", 0))
sketch13.addConstraint(Sketcher.Constraint("Horizontal", 2))
sketch13.addConstraint(Sketcher.Constraint("Vertical", 3))
sketch13.addConstraint(Sketcher.Constraint("Symmetric", 0, 2, 1, 2, -1))
sketch13.addConstraint(Sketcher.Constraint("Equal", 2, 3))
sketch13.addConstraint(Sketcher.Constraint("DistanceX", 0, 2, 0, 1, Q("65 mm")))
sketch13.addConstraint(Sketcher.Constraint("DistanceX", 1, 3, -1, 1, Q("130 mm")))
sketch13.addConstraint(Sketcher.Constraint("DistanceX", 0, 2, -1, 1, Q("5 mm")))
pocket10 = body.newObject("PartDesign::Pocket", "Pocket009")
pocket10.Profile = sketch13
pocket10.Length = 2.5
pocket10.Reversed = True

doc.recompute()
